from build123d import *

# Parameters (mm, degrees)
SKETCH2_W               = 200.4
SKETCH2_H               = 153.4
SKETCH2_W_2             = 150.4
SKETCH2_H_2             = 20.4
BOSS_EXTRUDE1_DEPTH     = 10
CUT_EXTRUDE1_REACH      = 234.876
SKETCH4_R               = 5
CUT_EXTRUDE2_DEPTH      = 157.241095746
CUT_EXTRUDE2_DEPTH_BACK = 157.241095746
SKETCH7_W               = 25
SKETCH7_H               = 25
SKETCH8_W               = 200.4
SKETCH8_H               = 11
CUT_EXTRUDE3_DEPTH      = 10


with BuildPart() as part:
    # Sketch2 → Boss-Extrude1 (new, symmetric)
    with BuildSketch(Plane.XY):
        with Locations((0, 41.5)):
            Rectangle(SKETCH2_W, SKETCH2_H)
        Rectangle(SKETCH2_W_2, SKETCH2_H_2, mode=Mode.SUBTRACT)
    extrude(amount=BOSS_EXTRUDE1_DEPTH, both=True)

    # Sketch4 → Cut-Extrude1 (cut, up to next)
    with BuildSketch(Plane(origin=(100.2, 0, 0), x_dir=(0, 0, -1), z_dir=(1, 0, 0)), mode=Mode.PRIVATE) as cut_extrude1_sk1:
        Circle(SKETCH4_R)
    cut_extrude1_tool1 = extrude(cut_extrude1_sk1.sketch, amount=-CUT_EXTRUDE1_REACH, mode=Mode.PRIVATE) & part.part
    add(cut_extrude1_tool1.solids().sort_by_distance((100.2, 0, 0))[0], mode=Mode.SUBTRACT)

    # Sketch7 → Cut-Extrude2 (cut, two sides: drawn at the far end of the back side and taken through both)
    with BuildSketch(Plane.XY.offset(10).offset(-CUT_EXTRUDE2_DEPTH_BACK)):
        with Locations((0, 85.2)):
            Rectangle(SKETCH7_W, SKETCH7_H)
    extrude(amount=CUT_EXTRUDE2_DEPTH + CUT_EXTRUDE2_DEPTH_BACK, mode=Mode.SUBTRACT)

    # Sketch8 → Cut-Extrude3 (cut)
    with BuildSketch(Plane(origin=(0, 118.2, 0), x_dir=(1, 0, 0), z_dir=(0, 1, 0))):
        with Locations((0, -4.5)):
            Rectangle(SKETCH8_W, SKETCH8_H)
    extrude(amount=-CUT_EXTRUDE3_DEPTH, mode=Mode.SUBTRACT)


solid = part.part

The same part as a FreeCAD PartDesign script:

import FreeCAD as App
import Part
import Sketcher
Q = App.Units.Quantity

doc = App.newDocument("Part")
body = doc.addObject("PartDesign::Body", "Body")

# Sketch on XY plane
sketch1 = body.newObject("Sketcher::SketchObject", "Sketch")
sketch1.AttachmentSupport = (doc.getObject("XY_Plane"), [""])
sketch1.MapMode = "FlatFace"
sketch1.addGeometry(Part.LineSegment(App.Vector(-100, 118, 0), App.Vector(-100, -35, 0)), False)
sketch1.addGeometry(Part.LineSegment(App.Vector(-100, -35, 0), App.Vector(100, -35, 0)), False)
sketch1.addGeometry(Part.LineSegment(App.Vector(100, -35, 0), App.Vector(100, 118, 0)), False)
sketch1.addGeometry(Part.LineSegment(App.Vector(100, 118, 0), App.Vector(-100, 118, 0)), False)
sketch1.addGeometry(Part.LineSegment(App.Vector(75, -10, 0), App.Vector(-75, -10, 0)), False)
sketch1.addGeometry(Part.LineSegment(App.Vector(-75, -10, 0), App.Vector(-75, 10, 0)), False)
sketch1.addGeometry(Part.LineSegment(App.Vector(-75, 10, 0), App.Vector(75, 10, 0)), False)
sketch1.addGeometry(Part.LineSegment(App.Vector(75, 10, 0), App.Vector(75, -10, 0)), False)
sketch1.addConstraint(Sketcher.Constraint("Coincident", 0, 2, 1, 1))
sketch1.addConstraint(Sketcher.Constraint("Coincident", 1, 2, 2, 1))
sketch1.addConstraint(Sketcher.Constraint("Coincident", 2, 2, 3, 1))
sketch1.addConstraint(Sketcher.Constraint("Coincident", 3, 2, 0, 1))
sketch1.addConstraint(Sketcher.Constraint("Coincident", 4, 2, 5, 1))
sketch1.addConstraint(Sketcher.Constraint("Coincident", 5, 2, 6, 1))
sketch1.addConstraint(Sketcher.Constraint("Coincident", 6, 2, 7, 1))
sketch1.addConstraint(Sketcher.Constraint("Coincident", 7, 2, 4, 1))
sketch1.addConstraint(Sketcher.Constraint("Vertical", 0))
sketch1.addConstraint(Sketcher.Constraint("Horizontal", 1))
sketch1.addConstraint(Sketcher.Constraint("Vertical", 2))
sketch1.addConstraint(Sketcher.Constraint("Horizontal", 3))
sketch1.addConstraint(Sketcher.Constraint("Horizontal", 4))
sketch1.addConstraint(Sketcher.Constraint("Vertical", 5))
sketch1.addConstraint(Sketcher.Constraint("Horizontal", 6))
sketch1.addConstraint(Sketcher.Constraint("Vertical", 7))
sketch1.addConstraint(Sketcher.Constraint("Symmetric", 4, 2, 6, 2, -1, 1))
sketch1.addConstraint(Sketcher.Constraint("DistanceX", 1, 1, 1, 2, Q("200.4 mm")))
sketch1.addConstraint(Sketcher.Constraint("DistanceX", 4, 2, 4, 1, Q("150.4 mm")))
sketch1.addConstraint(Sketcher.Constraint("DistanceY", 0, 2, 0, 1, Q("153.4 mm")))
sketch1.addConstraint(Sketcher.Constraint("DistanceY", 5, 1, 5, 2, Q("20.4 mm")))
sketch1.addConstraint(Sketcher.Constraint("DistanceX", 0, 2, 4, 2, Q("25 mm")))
sketch1.addConstraint(Sketcher.Constraint("DistanceY", 0, 2, 4, 2, Q("25 mm")))
pad1 = body.newObject("PartDesign::Pad", "Pad")
pad1.Profile = sketch1
pad1.Length = 20
pad1.Midplane = True

# Sketch on YZ plane
sketch2 = body.newObject("Sketcher::SketchObject", "Sketch001")
sketch2.AttachmentSupport = (doc.getObject("YZ_Plane"), [""])
sketch2.MapMode = "FlatFace"
sketch2.AttachmentOffset = App.Placement(App.Vector(0, 0, 100.2), App.Rotation())
sketch2.addGeometry(Part.Circle(App.Vector(0, 0, 0), App.Vector(0, 0, 1), 5), False)
sketch2.addConstraint(Sketcher.Constraint("Coincident", 0, 3, -1, 1))
sketch2.addConstraint(Sketcher.Constraint("Diameter", 0, Q("10 mm")))
pocket1 = body.newObject("PartDesign::Pocket", "Pocket")
pocket1.Profile = sketch2
pocket1.Type = "UpToFirst"

# Sketch on XY plane
sketch3 = body.newObject("Sketcher::SketchObject", "Sketch002")
sketch3.AttachmentSupport = (doc.getObject("XY_Plane"), [""])
sketch3.MapMode = "FlatFace"
sketch3.AttachmentOffset = App.Placement(App.Vector(0, 0, 10), App.Rotation())
sketch3.addGeometry(Part.LineSegment(App.Vector(-12, 98, 0), App.Vector(-12, 73, 0)), False)
sketch3.addGeometry(Part.LineSegment(App.Vector(-12, 73, 0), App.Vector(12, 73, 0)), False)
sketch3.addGeometry(Part.LineSegment(App.Vector(12, 73, 0), App.Vector(12, 98, 0)), False)
sketch3.addGeometry(Part.LineSegment(App.Vector(12, 98, 0), App.Vector(-12, 98, 0)), False)
sketch3.addConstraint(Sketcher.Constraint("Coincident", 0, 2, 1, 1))
sketch3.addConstraint(Sketcher.Constraint("Coincident", 1, 2, 2, 1))
sketch3.addConstraint(Sketcher.Constraint("Coincident", 2, 2, 3, 1))
sketch3.addConstraint(Sketcher.Constraint("Coincident", 3, 2, 0, 1))
sketch3.addConstraint(Sketcher.Constraint("Vertical", 0))
sketch3.addConstraint(Sketcher.Constraint("Horizontal", 1))
sketch3.addConstraint(Sketcher.Constraint("Vertical", 2))
sketch3.addConstraint(Sketcher.Constraint("Horizontal", 3))
sketch3.addConstraint(Sketcher.Constraint("Equal", 3, 0))
sketch3.addConstraint(Sketcher.Constraint("DistanceX", 1, 1, 1, 2, Q("25 mm")))
sketch3.addConstraint(Sketcher.Constraint("DistanceX", 0, 2, -1, 1, Q("12.5 mm")))
sketch3.addConstraint(Sketcher.Constraint("DistanceY", -1, 1, 0, 2, Q("72.7 mm")))
pocket2 = body.newObject("PartDesign::Pocket", "Pocket001")
pocket2.Profile = sketch3
pocket2.Type = "ThroughAll"
pocket2.Midplane = True

# Sketch on XZ plane
sketch4 = body.newObject("Sketcher::SketchObject", "Sketch003")
sketch4.AttachmentSupport = (doc.getObject("XZ_Plane"), [""])
sketch4.MapMode = "FlatFace"
sketch4.AttachmentOffset = App.Placement(App.Vector(0, 0, -118.2), App.Rotation())
sketch4.addGeometry(Part.LineSegment(App.Vector(-100, -1, 0), App.Vector(-100, 10, 0)), False)
sketch4.addGeometry(Part.LineSegment(App.Vector(-100, 10, 0), App.Vector(100, 10, 0)), False)
sketch4.addGeometry(Part.LineSegment(App.Vector(100, 10, 0), App.Vector(100, -1, 0)), False)
sketch4.addGeometry(Part.LineSegment(App.Vector(100, -1, 0), App.Vector(-100, -1, 0)), False)
sketch4.addConstraint(Sketcher.Constraint("Coincident", 0, 2, 1, 1))
sketch4.addConstraint(Sketcher.Constraint("Coincident", 1, 2, 2, 1))
sketch4.addConstraint(Sketcher.Constraint("Coincident", 2, 2, 3, 1))
sketch4.addConstraint(Sketcher.Constraint("Coincident", 3, 2, 0, 1))
sketch4.addConstraint(Sketcher.Constraint("Vertical", 0))
sketch4.addConstraint(Sketcher.Constraint("Horizontal", 1))
sketch4.addConstraint(Sketcher.Constraint("Vertical", 2))
sketch4.addConstraint(Sketcher.Constraint("Horizontal", 3))
sketch4.addConstraint(Sketcher.Constraint("DistanceY", 0, 1, 0, 2, Q("11 mm")))
sketch4.addConstraint(Sketcher.Constraint("DistanceX", 1, 1, 1, 2, Q("200.4 mm")))
sketch4.addConstraint(Sketcher.Constraint("DistanceY", -1, 1, 0, 2, Q("10 mm")))
sketch4.addConstraint(Sketcher.Constraint("DistanceX", 0, 2, -1, 1, Q("100.2 mm")))
pocket3 = body.newObject("PartDesign::Pocket", "Pocket002")
pocket3.Profile = sketch4
pocket3.Length = 10
pocket3.Reversed = True

doc.recompute()
